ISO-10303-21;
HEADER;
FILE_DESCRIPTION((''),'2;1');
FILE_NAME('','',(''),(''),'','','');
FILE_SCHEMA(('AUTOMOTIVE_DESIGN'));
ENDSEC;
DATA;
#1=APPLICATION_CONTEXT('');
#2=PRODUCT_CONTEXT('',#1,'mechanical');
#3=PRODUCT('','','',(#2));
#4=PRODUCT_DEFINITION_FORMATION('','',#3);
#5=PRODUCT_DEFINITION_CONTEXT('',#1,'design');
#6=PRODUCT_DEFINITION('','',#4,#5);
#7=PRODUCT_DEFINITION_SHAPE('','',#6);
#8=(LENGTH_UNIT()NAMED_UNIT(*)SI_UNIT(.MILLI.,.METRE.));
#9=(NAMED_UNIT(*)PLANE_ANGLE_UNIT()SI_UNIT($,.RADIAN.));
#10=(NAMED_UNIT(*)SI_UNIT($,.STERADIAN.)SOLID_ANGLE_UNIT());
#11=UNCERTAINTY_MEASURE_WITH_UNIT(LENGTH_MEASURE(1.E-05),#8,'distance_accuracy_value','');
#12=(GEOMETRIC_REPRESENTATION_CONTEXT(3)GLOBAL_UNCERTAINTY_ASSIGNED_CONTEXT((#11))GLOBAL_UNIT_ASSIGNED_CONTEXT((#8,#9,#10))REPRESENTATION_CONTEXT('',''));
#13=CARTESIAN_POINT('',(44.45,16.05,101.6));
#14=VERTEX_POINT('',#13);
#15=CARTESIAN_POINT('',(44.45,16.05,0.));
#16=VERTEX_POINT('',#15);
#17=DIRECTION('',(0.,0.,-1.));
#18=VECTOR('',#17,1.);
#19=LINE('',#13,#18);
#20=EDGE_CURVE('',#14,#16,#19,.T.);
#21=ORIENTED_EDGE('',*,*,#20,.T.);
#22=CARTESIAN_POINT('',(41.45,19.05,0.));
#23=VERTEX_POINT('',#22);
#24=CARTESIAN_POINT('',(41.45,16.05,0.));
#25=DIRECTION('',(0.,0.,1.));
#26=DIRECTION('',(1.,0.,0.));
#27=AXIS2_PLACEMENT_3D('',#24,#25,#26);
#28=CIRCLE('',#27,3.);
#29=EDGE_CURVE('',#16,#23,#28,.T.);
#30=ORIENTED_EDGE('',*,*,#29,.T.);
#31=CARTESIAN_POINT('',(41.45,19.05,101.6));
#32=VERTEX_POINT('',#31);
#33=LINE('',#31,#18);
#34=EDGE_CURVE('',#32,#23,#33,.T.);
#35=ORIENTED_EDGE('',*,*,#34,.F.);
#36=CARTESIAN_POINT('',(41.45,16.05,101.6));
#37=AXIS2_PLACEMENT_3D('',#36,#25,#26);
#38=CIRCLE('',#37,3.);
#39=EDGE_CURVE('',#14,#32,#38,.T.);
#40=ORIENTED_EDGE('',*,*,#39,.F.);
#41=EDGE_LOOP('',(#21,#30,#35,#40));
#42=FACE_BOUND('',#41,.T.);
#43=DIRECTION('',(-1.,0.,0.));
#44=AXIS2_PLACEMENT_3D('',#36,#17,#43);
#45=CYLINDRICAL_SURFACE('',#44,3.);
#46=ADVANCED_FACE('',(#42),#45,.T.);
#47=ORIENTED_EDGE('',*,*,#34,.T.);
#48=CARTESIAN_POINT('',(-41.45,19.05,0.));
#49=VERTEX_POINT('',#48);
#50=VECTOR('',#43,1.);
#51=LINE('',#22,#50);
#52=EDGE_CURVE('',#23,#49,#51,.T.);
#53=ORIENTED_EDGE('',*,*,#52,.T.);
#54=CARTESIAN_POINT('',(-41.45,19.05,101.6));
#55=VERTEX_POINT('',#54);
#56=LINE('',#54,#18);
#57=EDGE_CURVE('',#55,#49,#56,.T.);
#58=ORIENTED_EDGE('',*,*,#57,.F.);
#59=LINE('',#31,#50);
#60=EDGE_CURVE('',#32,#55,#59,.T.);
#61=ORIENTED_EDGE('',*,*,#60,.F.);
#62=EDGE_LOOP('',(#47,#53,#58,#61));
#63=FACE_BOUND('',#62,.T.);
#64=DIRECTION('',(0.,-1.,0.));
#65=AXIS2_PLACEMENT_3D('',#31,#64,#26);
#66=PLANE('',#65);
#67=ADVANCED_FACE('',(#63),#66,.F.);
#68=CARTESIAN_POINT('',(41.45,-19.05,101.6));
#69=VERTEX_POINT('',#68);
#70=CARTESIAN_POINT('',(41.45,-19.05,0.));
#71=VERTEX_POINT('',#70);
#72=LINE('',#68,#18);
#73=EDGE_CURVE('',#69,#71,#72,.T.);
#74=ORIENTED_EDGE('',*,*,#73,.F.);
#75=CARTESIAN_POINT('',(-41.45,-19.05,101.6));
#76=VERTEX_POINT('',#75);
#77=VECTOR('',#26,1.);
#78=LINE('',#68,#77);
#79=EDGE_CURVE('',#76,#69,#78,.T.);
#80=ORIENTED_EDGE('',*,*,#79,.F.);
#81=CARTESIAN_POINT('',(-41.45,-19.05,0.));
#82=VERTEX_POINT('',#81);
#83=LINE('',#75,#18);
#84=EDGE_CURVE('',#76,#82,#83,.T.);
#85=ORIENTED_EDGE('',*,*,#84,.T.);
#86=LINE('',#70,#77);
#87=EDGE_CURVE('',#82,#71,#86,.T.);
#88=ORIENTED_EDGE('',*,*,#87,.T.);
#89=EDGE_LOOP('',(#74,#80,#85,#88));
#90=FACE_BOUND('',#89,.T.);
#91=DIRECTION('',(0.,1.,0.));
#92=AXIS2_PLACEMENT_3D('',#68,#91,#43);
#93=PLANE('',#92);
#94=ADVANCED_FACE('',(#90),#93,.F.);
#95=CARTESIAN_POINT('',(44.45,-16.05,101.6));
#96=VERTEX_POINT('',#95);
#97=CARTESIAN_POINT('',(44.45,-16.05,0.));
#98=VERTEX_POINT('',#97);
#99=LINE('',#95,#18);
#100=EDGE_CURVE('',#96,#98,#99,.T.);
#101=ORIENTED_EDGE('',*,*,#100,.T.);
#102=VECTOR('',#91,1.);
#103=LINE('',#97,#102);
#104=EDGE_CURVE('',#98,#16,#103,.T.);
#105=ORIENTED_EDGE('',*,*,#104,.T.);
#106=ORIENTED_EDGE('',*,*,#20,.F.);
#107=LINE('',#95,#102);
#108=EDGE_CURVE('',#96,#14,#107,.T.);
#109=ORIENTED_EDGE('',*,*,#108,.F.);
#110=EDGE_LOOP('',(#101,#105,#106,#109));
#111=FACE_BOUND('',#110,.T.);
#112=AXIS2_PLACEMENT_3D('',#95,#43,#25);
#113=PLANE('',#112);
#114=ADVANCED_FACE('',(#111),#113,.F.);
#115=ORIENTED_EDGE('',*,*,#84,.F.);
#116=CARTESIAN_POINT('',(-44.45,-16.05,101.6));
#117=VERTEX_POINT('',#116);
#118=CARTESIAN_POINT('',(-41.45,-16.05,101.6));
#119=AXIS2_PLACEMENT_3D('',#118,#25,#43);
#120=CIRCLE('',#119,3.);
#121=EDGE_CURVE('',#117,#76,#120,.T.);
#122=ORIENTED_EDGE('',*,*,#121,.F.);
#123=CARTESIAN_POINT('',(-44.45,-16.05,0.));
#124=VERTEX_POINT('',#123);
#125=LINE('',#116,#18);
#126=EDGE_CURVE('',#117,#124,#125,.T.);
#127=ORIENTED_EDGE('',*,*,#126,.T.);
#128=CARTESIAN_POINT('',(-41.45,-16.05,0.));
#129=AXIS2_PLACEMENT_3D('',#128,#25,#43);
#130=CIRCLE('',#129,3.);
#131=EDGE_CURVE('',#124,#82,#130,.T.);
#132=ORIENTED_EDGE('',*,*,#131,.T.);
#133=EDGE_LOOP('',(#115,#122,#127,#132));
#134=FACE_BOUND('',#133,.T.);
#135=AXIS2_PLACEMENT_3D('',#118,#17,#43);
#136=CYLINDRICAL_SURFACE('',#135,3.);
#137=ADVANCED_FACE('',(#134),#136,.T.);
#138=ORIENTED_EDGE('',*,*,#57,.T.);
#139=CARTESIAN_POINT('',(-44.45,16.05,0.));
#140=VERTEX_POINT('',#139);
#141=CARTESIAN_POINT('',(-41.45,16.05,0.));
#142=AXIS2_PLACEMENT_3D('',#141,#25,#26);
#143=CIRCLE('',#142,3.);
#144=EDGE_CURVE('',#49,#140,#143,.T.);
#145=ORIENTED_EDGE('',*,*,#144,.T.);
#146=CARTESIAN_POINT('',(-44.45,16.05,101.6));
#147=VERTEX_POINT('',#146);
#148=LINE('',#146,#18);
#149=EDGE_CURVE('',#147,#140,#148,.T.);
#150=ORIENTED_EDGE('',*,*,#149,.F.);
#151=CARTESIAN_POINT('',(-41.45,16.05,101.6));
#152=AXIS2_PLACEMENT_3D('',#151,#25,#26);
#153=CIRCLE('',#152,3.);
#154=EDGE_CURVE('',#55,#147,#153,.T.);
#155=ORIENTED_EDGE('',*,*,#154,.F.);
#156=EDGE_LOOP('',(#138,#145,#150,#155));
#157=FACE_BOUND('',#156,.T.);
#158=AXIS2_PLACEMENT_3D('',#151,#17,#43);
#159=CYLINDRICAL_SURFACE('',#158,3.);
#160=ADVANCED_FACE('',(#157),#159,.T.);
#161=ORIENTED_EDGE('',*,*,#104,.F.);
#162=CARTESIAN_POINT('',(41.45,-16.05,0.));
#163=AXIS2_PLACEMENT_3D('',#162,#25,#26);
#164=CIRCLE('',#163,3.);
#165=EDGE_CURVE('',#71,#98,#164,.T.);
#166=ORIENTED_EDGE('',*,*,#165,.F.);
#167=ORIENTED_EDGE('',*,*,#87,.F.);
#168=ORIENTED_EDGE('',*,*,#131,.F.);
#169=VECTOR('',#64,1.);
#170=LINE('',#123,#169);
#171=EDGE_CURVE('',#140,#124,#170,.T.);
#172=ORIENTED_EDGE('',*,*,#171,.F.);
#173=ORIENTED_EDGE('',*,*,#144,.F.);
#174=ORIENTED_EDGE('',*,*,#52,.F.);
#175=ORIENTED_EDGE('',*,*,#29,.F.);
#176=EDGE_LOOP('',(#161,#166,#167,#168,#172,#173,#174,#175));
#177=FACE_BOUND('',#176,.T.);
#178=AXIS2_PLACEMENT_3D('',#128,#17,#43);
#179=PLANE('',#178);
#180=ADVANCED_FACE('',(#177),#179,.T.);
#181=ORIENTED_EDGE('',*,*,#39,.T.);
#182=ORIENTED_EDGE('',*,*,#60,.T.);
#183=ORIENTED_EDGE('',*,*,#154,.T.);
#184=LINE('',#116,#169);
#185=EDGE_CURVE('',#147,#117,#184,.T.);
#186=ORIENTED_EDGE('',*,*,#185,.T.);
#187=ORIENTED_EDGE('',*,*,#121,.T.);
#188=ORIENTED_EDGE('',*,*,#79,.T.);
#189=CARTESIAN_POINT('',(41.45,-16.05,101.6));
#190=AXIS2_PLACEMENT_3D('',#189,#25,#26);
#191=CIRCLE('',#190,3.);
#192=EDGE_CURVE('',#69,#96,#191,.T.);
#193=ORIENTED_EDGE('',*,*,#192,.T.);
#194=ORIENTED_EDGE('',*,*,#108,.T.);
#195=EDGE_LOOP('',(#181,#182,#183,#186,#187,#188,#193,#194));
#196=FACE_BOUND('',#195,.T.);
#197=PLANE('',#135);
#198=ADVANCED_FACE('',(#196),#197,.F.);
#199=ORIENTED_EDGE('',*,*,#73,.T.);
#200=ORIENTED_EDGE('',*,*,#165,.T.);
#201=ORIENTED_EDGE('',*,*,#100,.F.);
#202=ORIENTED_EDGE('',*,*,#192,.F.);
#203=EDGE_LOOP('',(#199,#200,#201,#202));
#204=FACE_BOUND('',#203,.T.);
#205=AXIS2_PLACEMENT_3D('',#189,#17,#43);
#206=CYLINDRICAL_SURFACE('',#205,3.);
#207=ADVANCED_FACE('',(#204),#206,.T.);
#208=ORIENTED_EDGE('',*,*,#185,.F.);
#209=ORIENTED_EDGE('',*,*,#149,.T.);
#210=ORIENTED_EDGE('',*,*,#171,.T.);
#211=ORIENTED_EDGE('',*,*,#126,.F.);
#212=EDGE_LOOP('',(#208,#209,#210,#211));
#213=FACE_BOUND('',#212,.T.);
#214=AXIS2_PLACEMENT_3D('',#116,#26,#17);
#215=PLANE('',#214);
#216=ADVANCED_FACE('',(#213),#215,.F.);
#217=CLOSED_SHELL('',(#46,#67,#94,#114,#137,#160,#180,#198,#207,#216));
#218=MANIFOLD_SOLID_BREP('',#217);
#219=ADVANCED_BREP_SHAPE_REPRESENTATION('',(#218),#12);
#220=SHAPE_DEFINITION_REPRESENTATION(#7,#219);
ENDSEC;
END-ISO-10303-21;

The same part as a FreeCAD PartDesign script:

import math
import FreeCAD as App
import Part
import Sketcher
from FreeCAD import Vector

doc = App.newDocument("Part")
body = doc.addObject("PartDesign::Body", "Body")

sketch1 = doc.addObject("Sketcher::SketchObject", "Sketch")
body.addObject(sketch1)
sketch1.AttachmentSupport = (doc.XY_Plane, [""])
sketch1.MapMode = "FlatFace"
sketch1.addGeometry([
    Part.LineSegment(Vector(-41.5, -19.1, 0), Vector(41.5, -19.1, 0)),
    Part.ArcOfCircle(Part.Circle(Vector(41.5, -16.1, 0), Vector(0, 0, 1), 3), math.radians(-90), math.radians(0)),
    Part.LineSegment(Vector(44.5, -16.1, 0), Vector(44.5, 16.1, 0)),
    Part.ArcOfCircle(Part.Circle(Vector(41.5, 16.1, 0), Vector(0, 0, 1), 3), math.radians(0), math.radians(90)),
    Part.LineSegment(Vector(41.5, 19.1, 0), Vector(-41.5, 19.1, 0)),
    Part.ArcOfCircle(Part.Circle(Vector(-41.5, 16.1, 0), Vector(0, 0, 1), 3), math.radians(90), math.radians(180)),
    Part.LineSegment(Vector(-44.5, 16.1, 0), Vector(-44.5, -16.1, 0)),
    Part.ArcOfCircle(Part.Circle(Vector(-41.5, -16.1, 0), Vector(0, 0, 1), 3), math.radians(180), math.radians(270)),
], False)
sketch1.addConstraint([
    Sketcher.Constraint("Tangent", 0, 2, 1, 1),
    Sketcher.Constraint("Tangent", 1, 2, 2, 1),
    Sketcher.Constraint("Tangent", 2, 2, 3, 1),
    Sketcher.Constraint("Tangent", 3, 2, 4, 1),
    Sketcher.Constraint("Tangent", 4, 2, 5, 1),
    Sketcher.Constraint("Tangent", 5, 2, 6, 1),
    Sketcher.Constraint("Tangent", 6, 2, 7, 1),
    Sketcher.Constraint("Tangent", 7, 2, 0, 1),
    Sketcher.Constraint("Horizontal", 0),
    Sketcher.Constraint("Vertical", 2),
    Sketcher.Constraint("Horizontal", 4),
    Sketcher.Constraint("Vertical", 6),
    Sketcher.Constraint("Equal", 1, 3),
    Sketcher.Constraint("Equal", 3, 5),
    Sketcher.Constraint("Equal", 5, 7),
    Sketcher.Constraint("Symmetric", 1, 3, 5, 3, -1, 1),
    Sketcher.Constraint("Radius", 1, 3.0),
    Sketcher.Constraint("DistanceX", 0, 1, 0, 2, 82.9),
    Sketcher.Constraint("DistanceY", 2, 1, 2, 2, 32.1),
])
pad1 = doc.addObject("PartDesign::Pad", "Pad")
body.addObject(pad1)
pad1.Profile = sketch1
pad1.Length = 101.6

doc.recompute()
